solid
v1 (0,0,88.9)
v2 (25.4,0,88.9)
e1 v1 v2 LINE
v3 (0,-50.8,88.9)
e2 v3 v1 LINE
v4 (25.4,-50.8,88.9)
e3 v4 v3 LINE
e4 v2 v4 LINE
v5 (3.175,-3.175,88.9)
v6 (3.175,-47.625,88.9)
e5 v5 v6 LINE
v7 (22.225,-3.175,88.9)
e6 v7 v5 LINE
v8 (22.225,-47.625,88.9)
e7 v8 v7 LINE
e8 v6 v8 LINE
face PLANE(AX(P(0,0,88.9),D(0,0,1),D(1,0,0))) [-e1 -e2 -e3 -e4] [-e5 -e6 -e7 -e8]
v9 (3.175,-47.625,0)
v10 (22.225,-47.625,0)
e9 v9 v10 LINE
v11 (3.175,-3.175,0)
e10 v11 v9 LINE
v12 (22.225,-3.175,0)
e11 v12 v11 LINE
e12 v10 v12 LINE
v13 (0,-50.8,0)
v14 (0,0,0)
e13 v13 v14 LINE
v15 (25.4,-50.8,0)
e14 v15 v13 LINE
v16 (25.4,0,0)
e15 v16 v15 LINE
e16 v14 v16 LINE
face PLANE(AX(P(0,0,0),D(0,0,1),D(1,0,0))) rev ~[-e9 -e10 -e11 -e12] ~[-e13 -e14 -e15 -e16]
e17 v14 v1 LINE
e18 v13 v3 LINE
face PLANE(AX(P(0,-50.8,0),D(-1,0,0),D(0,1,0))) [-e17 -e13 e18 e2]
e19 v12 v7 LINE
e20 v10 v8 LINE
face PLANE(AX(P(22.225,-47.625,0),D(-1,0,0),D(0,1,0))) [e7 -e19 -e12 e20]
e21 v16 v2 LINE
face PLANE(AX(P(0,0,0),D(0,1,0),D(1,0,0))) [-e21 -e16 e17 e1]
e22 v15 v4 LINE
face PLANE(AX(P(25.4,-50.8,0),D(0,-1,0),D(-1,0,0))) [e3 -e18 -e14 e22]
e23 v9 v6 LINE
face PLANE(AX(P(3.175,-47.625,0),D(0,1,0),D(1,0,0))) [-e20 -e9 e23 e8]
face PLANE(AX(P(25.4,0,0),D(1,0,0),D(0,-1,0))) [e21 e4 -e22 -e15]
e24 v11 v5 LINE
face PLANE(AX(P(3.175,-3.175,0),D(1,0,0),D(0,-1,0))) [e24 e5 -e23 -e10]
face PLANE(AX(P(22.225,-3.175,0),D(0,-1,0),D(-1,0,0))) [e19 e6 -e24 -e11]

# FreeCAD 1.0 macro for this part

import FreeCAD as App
import Part
import Sketcher
from FreeCAD import Vector
Q = App.Units.Quantity

doc = App.newDocument("Part")
body = doc.addObject("PartDesign::Body", "Body")

# Sketch on XY plane
sketch1 = body.newObject("Sketcher::SketchObject", "Sketch")
sketch1.AttachmentSupport = (doc.getObject("XY_Plane"), [""])
sketch1.MapMode = "FlatFace"
sketch1.addGeometry([
    Part.LineSegment(Vector(25, 0, 0), Vector(0, 0, 0)),  # 0
    Part.LineSegment(Vector(0, 0, 0), Vector(0, -51, 0)),  # 1
    Part.LineSegment(Vector(0, -51, 0), Vector(25, -51, 0)),  # 2
    Part.LineSegment(Vector(25, -51, 0), Vector(25, 0, 0)),  # 3
    Part.LineSegment(Vector(3, -3, 0), Vector(22, -3, 0)),  # 4
    Part.LineSegment(Vector(22, -3, 0), Vector(22, -48, 0)),  # 5
    Part.LineSegment(Vector(22, -48, 0), Vector(3, -48, 0)),  # 6
    Part.LineSegment(Vector(3, -48, 0), Vector(3, -3, 0)),  # 7
], False)
sketch1.addConstraint([
    Sketcher.Constraint("Coincident", 0, 2, 1, 1),
    Sketcher.Constraint("Coincident", 1, 2, 2, 1),
    Sketcher.Constraint("Coincident", 2, 2, 3, 1),
    Sketcher.Constraint("Coincident", 3, 2, 0, 1),
    Sketcher.Constraint("Coincident", 4, 2, 5, 1),
    Sketcher.Constraint("Coincident", 5, 2, 6, 1),
    Sketcher.Constraint("Coincident", 6, 2, 7, 1),
    Sketcher.Constraint("Coincident", 7, 2, 4, 1),
    Sketcher.Constraint("Horizontal", 0),
    Sketcher.Constraint("Vertical", 1),
    Sketcher.Constraint("Horizontal", 2),
    Sketcher.Constraint("Vertical", 3),
    Sketcher.Constraint("Horizontal", 4),
    Sketcher.Constraint("Vertical", 5),
    Sketcher.Constraint("Horizontal", 6),
    Sketcher.Constraint("Vertical", 7),
    Sketcher.Constraint("Coincident", 0, 2, -1, 1),
    Sketcher.Constraint("DistanceX", 0, 2, 0, 1, Q("1 in")),
    Sketcher.Constraint("DistanceY", 1, 2, 1, 1, Q("2 in")),
    Sketcher.Constraint("DistanceY", 4, 2, -1, 1, Q("0.125 in")),
    Sketcher.Constraint("DistanceX", -1, 1, 6, 2, Q("0.125 in")),
    Sketcher.Constraint("DistanceX", 4, 2, 3, 2, Q("0.125 in")),
    Sketcher.Constraint("DistanceY", 2, 2, 5, 2, Q("0.125 in")),
])
pad1 = body.newObject("PartDesign::Pad", "Pad")
pad1.Profile = sketch1
pad1.Length = Q("3.5 in")

doc.recompute()
